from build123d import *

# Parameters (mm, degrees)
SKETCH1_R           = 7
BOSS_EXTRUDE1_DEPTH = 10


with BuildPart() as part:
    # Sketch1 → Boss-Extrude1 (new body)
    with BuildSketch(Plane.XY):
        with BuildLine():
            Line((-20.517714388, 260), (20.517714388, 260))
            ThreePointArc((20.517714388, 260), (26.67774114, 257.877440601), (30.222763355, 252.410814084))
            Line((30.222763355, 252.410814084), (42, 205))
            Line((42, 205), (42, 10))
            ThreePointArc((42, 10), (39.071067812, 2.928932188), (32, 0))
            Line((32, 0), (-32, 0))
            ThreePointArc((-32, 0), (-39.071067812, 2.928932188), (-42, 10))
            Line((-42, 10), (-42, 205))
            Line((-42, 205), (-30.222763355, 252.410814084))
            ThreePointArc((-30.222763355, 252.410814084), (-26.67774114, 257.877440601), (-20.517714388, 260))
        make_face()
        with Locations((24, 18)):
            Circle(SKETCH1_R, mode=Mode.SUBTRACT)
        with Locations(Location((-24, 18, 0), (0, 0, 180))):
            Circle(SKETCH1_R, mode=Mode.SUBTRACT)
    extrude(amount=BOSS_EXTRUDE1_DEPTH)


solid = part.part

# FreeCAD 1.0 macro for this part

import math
import FreeCAD as App
import Part
import Sketcher

V = App.Vector

doc = App.newDocument("Part")
body = doc.addObject("PartDesign::Body", "Body")

# Sketch on XY plane
sketch1 = body.newObject("Sketcher::SketchObject", "Sketch")
sketch1.AttachmentSupport = (doc.getObject("XY_Plane"), [""])
sketch1.MapMode = "FlatFace"
sketch1.addGeometry(Part.LineSegment(V(21, 260, 0), V(-21, 260, 0)), False)
sketch1.addGeometry(Part.ArcOfCircle(Part.Circle(V(-21, 250, 0), V(0, 0, 1), 10), math.radians(90), math.radians(166)), False)
sketch1.addGeometry(Part.LineSegment(V(-30, 252, 0), V(-42, 205, 0)), False)
sketch1.addGeometry(Part.LineSegment(V(-42, 205, 0), V(-42, 10, 0)), False)
sketch1.addGeometry(Part.ArcOfCircle(Part.Circle(V(-32, 10, 0), V(0, 0, 1), 10), math.radians(180), math.radians(270)), False)
sketch1.addGeometry(Part.LineSegment(V(-32, 0, 0), V(32, 0, 0)), False)
sketch1.addGeometry(Part.ArcOfCircle(Part.Circle(V(32, 10, 0), V(0, 0, 1), 10), math.radians(-90), math.radians(0)), False)
sketch1.addGeometry(Part.LineSegment(V(42, 10, 0), V(42, 205, 0)), False)
sketch1.addGeometry(Part.LineSegment(V(42, 205, 0), V(30, 252, 0)), False)
sketch1.addGeometry(Part.ArcOfCircle(Part.Circle(V(21, 250, 0), V(0, 0, 1), 10), math.radians(14), math.radians(90)), False)
sketch1.addGeometry(Part.Circle(V(24, 18, 0), V(0, 0, 1), 7), False)
sketch1.addGeometry(Part.Circle(V(-24, 18, 0), V(0, 0, 1), 7), False)
sketch1.addConstraint(Sketcher.Constraint("Tangent", 0, 2, 1, 1))
sketch1.addConstraint(Sketcher.Constraint("Tangent", 1, 2, 2, 1))
sketch1.addConstraint(Sketcher.Constraint("Coincident", 2, 2, 3, 1))
sketch1.addConstraint(Sketcher.Constraint("Tangent", 3, 2, 4, 1))
sketch1.addConstraint(Sketcher.Constraint("Tangent", 4, 2, 5, 1))
sketch1.addConstraint(Sketcher.Constraint("Tangent", 5, 2, 6, 1))
sketch1.addConstraint(Sketcher.Constraint("Tangent", 6, 2, 7, 1))
sketch1.addConstraint(Sketcher.Constraint("Coincident", 7, 2, 8, 1))
sketch1.addConstraint(Sketcher.Constraint("Tangent", 8, 2, 9, 1))
sketch1.addConstraint(Sketcher.Constraint("Tangent", 9, 2, 0, 1))
sketch1.addConstraint(Sketcher.Constraint("Horizontal", 0))
sketch1.addConstraint(Sketcher.Constraint("Vertical", 3))
sketch1.addConstraint(Sketcher.Constraint("Horizontal", 5))
sketch1.addConstraint(Sketcher.Constraint("Vertical", 7))
sketch1.addConstraint(Sketcher.Constraint("Equal", 1, 4))
sketch1.addConstraint(Sketcher.Constraint("Equal", 4, 6))
sketch1.addConstraint(Sketcher.Constraint("Equal", 6, 9))
sketch1.addConstraint(Sketcher.Constraint("Equal", 10, 11))
sketch1.addConstraint(Sketcher.Constraint("Symmetric", 4, 2, 5, 2, -1, 1))
sketch1.addConstraint(Sketcher.Constraint("Symmetric", 10, 3, 11, 3, -2))
sketch1.addConstraint(Sketcher.Constraint("Symmetric", 1, 2, 8, 2, -2))
sketch1.addConstraint(Sketcher.Constraint("Diameter", 10, 14.0))
sketch1.addConstraint(Sketcher.Constraint("Radius", 1, 10.0))
sketch1.addConstraint(Sketcher.Constraint("DistanceX", 5, 1, 5, 2, 64.0))
sketch1.addConstraint(Sketcher.Constraint("DistanceY", 3, 2, 3, 1, 195.0))
sketch1.addConstraint(Sketcher.Constraint("DistanceY", -1, 1, 1, 3, 250.0))
sketch1.addConstraint(Sketcher.Constraint("DistanceX", -1, 1, 10, 3, 24.0))
sketch1.addConstraint(Sketcher.Constraint("DistanceY", -1, 1, 10, 3, 18.0))
sketch1.addConstraint(Sketcher.Constraint("Distance", 2, 48.8517))
pad1 = body.newObject("PartDesign::Pad", "Pad")
pad1.Profile = sketch1
pad1.Length = 10

doc.recompute()
